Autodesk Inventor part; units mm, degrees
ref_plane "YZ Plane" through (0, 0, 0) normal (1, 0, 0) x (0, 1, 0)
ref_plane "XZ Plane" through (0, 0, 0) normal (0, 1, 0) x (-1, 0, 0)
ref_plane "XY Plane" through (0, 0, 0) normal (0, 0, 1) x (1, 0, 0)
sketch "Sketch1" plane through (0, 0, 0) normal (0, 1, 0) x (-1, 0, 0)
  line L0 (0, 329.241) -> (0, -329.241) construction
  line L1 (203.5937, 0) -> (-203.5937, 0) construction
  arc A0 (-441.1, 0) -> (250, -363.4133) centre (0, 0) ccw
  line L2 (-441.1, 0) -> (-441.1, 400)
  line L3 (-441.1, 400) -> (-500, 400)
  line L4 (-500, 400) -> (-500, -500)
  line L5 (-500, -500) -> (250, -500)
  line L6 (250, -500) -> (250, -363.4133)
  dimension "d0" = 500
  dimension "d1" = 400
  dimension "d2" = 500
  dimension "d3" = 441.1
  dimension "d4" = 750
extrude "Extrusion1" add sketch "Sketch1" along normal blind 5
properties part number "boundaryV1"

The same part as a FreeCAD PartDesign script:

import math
import FreeCAD as App
import Part
import Sketcher

V = App.Vector
Q = App.Units.Quantity

doc = App.newDocument("Part")
body = doc.addObject("PartDesign::Body", "Body")

# Sketch on XZ plane
sketch1 = body.newObject("Sketcher::SketchObject", "Sketch")
sketch1.AttachmentSupport = (doc.getObject("XZ_Plane"), [""])
sketch1.MapMode = "FlatFace"
sketch1.addGeometry([
    Part.ArcOfCircle(Part.Circle(V(0, 0, 0), V(0, 0, 1), 441), math.radians(-125), math.radians(0)),  # 0
    Part.LineSegment(V(441, 0, 0), V(441, 400, 0)),  # 1
    Part.LineSegment(V(441, 400, 0), V(500, 400, 0)),  # 2
    Part.LineSegment(V(500, 400, 0), V(500, -500, 0)),  # 3
    Part.LineSegment(V(500, -500, 0), V(-250, -500, 0)),  # 4
    Part.LineSegment(V(-250, -500, 0), V(-250, -363, 0)),  # 5
], False)
sketch1.addConstraint([
    Sketcher.Constraint("Tangent", 0, 2, 1, 1),
    Sketcher.Constraint("Coincident", 1, 2, 2, 1),
    Sketcher.Constraint("Coincident", 2, 2, 3, 1),
    Sketcher.Constraint("Coincident", 3, 2, 4, 1),
    Sketcher.Constraint("Coincident", 4, 2, 5, 1),
    Sketcher.Constraint("Coincident", 5, 2, 0, 1),
    Sketcher.Constraint("Vertical", 1),
    Sketcher.Constraint("Horizontal", 2),
    Sketcher.Constraint("Vertical", 3),
    Sketcher.Constraint("Horizontal", 4),
    Sketcher.Constraint("Vertical", 5),
    Sketcher.Constraint("Coincident", 0, 3, -1, 1),
    Sketcher.Constraint("Radius", 0, Q("441.1 mm")),
    Sketcher.Constraint("DistanceX", 4, 2, 4, 1, Q("750 mm")),
    Sketcher.Constraint("DistanceY", 1, 1, 1, 2, Q("400 mm")),
    Sketcher.Constraint("DistanceX", -1, 1, 2, 2, Q("500 mm")),
    Sketcher.Constraint("DistanceY", 3, 2, -1, 1, Q("500 mm")),
])
pad1 = body.newObject("PartDesign::Pad", "Pad")
pad1.Profile = sketch1
pad1.Length = 5
pad1.Reversed = True

doc.recompute()
